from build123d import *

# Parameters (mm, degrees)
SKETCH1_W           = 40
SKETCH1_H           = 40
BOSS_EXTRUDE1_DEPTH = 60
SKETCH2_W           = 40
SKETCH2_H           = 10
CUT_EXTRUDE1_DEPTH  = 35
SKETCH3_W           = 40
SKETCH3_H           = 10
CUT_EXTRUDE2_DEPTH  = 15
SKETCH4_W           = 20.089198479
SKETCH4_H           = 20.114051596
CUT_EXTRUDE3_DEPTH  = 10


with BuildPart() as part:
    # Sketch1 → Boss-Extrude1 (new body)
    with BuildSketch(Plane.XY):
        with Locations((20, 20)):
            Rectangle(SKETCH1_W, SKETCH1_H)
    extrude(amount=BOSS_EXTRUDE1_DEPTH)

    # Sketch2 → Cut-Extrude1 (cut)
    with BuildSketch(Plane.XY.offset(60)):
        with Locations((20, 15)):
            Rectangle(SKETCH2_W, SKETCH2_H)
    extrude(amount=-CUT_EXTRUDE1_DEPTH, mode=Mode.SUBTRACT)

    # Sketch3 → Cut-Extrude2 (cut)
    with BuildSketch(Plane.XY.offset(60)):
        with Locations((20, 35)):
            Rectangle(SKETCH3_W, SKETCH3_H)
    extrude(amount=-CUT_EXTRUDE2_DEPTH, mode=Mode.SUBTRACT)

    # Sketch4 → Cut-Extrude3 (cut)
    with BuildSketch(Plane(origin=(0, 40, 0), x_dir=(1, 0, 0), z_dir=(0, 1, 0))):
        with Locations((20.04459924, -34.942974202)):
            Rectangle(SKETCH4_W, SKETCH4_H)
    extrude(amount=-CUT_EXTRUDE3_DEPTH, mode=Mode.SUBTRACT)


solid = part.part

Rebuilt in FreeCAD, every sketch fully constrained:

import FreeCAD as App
import Part
import Sketcher
from FreeCAD import Vector


def add_polygon(sketch, points):
    """Adds a closed chain of lines whose ends are joined by coincident constraints."""
    first, n = sketch.GeometryCount, len(points)
    for a, b in zip(points, points[1:] + points[:1]):
        sketch.addGeometry(Part.LineSegment(App.Vector(*a, 0), App.Vector(*b, 0)), False)
    for i in range(n):
        sketch.addConstraint(Sketcher.Constraint("Coincident", first + i, 2, first + (i + 1) % n, 1))

doc = App.newDocument("Part")
params = doc.addObject("Spreadsheet::Sheet", "Params")
for row, (alias, value) in enumerate([
    ("sketch1_width", "40 mm"),
    ("pad1_length", "60 mm"),
    ("sketch2_width", "40 mm"),
    ("sketch2_height", "10 mm"),
    ("pocket1_length", "35 mm"),
    ("sketch3_width", "40 mm"),
    ("sketch3_height", "10 mm"),
    ("pocket2_length", "15 mm"),
    ("pocket3_length", "10 mm"),
], start=1):
    params.set(f"A{row}", alias)
    params.set(f"B{row}", "=" + value)
    params.setAlias(f"B{row}", alias)

body = doc.addObject("PartDesign::Body", "Body")

sketch1 = body.newObject("Sketcher::SketchObject", "Sketch")
sketch1.AttachmentSupport = (doc.getObject("XY_Plane"), [""])
sketch1.MapMode = "FlatFace"
add_polygon(sketch1, [(0, 40), (0, 0), (40, 0), (40, 40)])
sketch1.addConstraint([
    Sketcher.Constraint("Vertical", 0),
    Sketcher.Constraint("Horizontal", 1),
    Sketcher.Constraint("Vertical", 2),
    Sketcher.Constraint("Horizontal", 3),
    Sketcher.Constraint("Coincident", 0, 2, -1, 1),
    Sketcher.Constraint("Equal", 3, 0),
    Sketcher.Constraint("DistanceX", 1, 1, 1, 2, 40.0),
])
sketch1.setExpression("Constraints[10]", "Params.sketch1_width")
pad1 = body.newObject("PartDesign::Pad", "Pad")
pad1.Profile = sketch1
pad1.setExpression("Length", "Params.pad1_length")

sketch2 = body.newObject("Sketcher::SketchObject", "Sketch001")
sketch2.AttachmentSupport = (doc.getObject("XY_Plane"), [""])
sketch2.MapMode = "FlatFace"
sketch2.AttachmentOffset = App.Placement(Vector(0, 0, 60), App.Rotation())
add_polygon(sketch2, [(0, 20), (0, 10), (40, 10), (40, 20)])
sketch2.addConstraint([
    Sketcher.Constraint("Vertical", 0),
    Sketcher.Constraint("Horizontal", 1),
    Sketcher.Constraint("Vertical", 2),
    Sketcher.Constraint("Horizontal", 3),
    Sketcher.Constraint("PointOnObject", 0, 2, -2),
    Sketcher.Constraint("DistanceX", 1, 1, 1, 2, 40.0),
    Sketcher.Constraint("DistanceY", 0, 2, 0, 1, 10.0),
    Sketcher.Constraint("DistanceY", -1, 1, 0, 2, 10.0),
])
sketch2.setExpression("Constraints[9]", "Params.sketch2_width")
sketch2.setExpression("Constraints[10]", "Params.sketch2_height")
pocket1 = body.newObject("PartDesign::Pocket", "Pocket")
pocket1.Profile = sketch2
pocket1.setExpression("Length", "Params.pocket1_length")

sketch3 = body.newObject("Sketcher::SketchObject", "Sketch002")
sketch3.AttachmentSupport = (doc.getObject("XY_Plane"), [""])
sketch3.MapMode = "FlatFace"
sketch3.AttachmentOffset = App.Placement(Vector(0, 0, 60), App.Rotation())
add_polygon(sketch3, [(0, 40), (0, 30), (40, 30), (40, 40)])
sketch3.addConstraint([
    Sketcher.Constraint("Vertical", 0),
    Sketcher.Constraint("Horizontal", 1),
    Sketcher.Constraint("Vertical", 2),
    Sketcher.Constraint("Horizontal", 3),
    Sketcher.Constraint("PointOnObject", 0, 2, -2),
    Sketcher.Constraint("DistanceX", 1, 1, 1, 2, 40.0),
    Sketcher.Constraint("DistanceY", 0, 2, 0, 1, 10.0),
    Sketcher.Constraint("DistanceY", -1, 1, 0, 2, 30.0),
])
sketch3.setExpression("Constraints[9]", "Params.sketch3_width")
sketch3.setExpression("Constraints[10]", "Params.sketch3_height")
pocket2 = body.newObject("PartDesign::Pocket", "Pocket001")
pocket2.Profile = sketch3
pocket2.setExpression("Length", "Params.pocket2_length")

sketch4 = body.newObject("Sketcher::SketchObject", "Sketch003")
sketch4.AttachmentSupport = (doc.getObject("XZ_Plane"), [""])
sketch4.MapMode = "FlatFace"
sketch4.AttachmentOffset = App.Placement(Vector(0, 0, -40), App.Rotation())
add_polygon(sketch4, [(10, 25), (10, 45), (30, 45), (30, 25)])
sketch4.addConstraint([
    Sketcher.Constraint("Vertical", 0),
    Sketcher.Constraint("Horizontal", 1),
    Sketcher.Constraint("Vertical", 2),
    Sketcher.Constraint("Horizontal", 3),
    Sketcher.Constraint("DistanceX", -1, 1, 0, 2, 10.0),
    Sketcher.Constraint("DistanceY", -1, 1, 0, 2, 45.0),
    Sketcher.Constraint("DistanceX", 1, 1, 1, 2, 20.089198),
    Sketcher.Constraint("DistanceY", 0, 1, 0, 2, 20.114052),
])
pocket3 = body.newObject("PartDesign::Pocket", "Pocket002")
pocket3.Profile = sketch4
pocket3.setExpression("Length", "Params.pocket3_length")
pocket3.Reversed = True

doc.recompute()
